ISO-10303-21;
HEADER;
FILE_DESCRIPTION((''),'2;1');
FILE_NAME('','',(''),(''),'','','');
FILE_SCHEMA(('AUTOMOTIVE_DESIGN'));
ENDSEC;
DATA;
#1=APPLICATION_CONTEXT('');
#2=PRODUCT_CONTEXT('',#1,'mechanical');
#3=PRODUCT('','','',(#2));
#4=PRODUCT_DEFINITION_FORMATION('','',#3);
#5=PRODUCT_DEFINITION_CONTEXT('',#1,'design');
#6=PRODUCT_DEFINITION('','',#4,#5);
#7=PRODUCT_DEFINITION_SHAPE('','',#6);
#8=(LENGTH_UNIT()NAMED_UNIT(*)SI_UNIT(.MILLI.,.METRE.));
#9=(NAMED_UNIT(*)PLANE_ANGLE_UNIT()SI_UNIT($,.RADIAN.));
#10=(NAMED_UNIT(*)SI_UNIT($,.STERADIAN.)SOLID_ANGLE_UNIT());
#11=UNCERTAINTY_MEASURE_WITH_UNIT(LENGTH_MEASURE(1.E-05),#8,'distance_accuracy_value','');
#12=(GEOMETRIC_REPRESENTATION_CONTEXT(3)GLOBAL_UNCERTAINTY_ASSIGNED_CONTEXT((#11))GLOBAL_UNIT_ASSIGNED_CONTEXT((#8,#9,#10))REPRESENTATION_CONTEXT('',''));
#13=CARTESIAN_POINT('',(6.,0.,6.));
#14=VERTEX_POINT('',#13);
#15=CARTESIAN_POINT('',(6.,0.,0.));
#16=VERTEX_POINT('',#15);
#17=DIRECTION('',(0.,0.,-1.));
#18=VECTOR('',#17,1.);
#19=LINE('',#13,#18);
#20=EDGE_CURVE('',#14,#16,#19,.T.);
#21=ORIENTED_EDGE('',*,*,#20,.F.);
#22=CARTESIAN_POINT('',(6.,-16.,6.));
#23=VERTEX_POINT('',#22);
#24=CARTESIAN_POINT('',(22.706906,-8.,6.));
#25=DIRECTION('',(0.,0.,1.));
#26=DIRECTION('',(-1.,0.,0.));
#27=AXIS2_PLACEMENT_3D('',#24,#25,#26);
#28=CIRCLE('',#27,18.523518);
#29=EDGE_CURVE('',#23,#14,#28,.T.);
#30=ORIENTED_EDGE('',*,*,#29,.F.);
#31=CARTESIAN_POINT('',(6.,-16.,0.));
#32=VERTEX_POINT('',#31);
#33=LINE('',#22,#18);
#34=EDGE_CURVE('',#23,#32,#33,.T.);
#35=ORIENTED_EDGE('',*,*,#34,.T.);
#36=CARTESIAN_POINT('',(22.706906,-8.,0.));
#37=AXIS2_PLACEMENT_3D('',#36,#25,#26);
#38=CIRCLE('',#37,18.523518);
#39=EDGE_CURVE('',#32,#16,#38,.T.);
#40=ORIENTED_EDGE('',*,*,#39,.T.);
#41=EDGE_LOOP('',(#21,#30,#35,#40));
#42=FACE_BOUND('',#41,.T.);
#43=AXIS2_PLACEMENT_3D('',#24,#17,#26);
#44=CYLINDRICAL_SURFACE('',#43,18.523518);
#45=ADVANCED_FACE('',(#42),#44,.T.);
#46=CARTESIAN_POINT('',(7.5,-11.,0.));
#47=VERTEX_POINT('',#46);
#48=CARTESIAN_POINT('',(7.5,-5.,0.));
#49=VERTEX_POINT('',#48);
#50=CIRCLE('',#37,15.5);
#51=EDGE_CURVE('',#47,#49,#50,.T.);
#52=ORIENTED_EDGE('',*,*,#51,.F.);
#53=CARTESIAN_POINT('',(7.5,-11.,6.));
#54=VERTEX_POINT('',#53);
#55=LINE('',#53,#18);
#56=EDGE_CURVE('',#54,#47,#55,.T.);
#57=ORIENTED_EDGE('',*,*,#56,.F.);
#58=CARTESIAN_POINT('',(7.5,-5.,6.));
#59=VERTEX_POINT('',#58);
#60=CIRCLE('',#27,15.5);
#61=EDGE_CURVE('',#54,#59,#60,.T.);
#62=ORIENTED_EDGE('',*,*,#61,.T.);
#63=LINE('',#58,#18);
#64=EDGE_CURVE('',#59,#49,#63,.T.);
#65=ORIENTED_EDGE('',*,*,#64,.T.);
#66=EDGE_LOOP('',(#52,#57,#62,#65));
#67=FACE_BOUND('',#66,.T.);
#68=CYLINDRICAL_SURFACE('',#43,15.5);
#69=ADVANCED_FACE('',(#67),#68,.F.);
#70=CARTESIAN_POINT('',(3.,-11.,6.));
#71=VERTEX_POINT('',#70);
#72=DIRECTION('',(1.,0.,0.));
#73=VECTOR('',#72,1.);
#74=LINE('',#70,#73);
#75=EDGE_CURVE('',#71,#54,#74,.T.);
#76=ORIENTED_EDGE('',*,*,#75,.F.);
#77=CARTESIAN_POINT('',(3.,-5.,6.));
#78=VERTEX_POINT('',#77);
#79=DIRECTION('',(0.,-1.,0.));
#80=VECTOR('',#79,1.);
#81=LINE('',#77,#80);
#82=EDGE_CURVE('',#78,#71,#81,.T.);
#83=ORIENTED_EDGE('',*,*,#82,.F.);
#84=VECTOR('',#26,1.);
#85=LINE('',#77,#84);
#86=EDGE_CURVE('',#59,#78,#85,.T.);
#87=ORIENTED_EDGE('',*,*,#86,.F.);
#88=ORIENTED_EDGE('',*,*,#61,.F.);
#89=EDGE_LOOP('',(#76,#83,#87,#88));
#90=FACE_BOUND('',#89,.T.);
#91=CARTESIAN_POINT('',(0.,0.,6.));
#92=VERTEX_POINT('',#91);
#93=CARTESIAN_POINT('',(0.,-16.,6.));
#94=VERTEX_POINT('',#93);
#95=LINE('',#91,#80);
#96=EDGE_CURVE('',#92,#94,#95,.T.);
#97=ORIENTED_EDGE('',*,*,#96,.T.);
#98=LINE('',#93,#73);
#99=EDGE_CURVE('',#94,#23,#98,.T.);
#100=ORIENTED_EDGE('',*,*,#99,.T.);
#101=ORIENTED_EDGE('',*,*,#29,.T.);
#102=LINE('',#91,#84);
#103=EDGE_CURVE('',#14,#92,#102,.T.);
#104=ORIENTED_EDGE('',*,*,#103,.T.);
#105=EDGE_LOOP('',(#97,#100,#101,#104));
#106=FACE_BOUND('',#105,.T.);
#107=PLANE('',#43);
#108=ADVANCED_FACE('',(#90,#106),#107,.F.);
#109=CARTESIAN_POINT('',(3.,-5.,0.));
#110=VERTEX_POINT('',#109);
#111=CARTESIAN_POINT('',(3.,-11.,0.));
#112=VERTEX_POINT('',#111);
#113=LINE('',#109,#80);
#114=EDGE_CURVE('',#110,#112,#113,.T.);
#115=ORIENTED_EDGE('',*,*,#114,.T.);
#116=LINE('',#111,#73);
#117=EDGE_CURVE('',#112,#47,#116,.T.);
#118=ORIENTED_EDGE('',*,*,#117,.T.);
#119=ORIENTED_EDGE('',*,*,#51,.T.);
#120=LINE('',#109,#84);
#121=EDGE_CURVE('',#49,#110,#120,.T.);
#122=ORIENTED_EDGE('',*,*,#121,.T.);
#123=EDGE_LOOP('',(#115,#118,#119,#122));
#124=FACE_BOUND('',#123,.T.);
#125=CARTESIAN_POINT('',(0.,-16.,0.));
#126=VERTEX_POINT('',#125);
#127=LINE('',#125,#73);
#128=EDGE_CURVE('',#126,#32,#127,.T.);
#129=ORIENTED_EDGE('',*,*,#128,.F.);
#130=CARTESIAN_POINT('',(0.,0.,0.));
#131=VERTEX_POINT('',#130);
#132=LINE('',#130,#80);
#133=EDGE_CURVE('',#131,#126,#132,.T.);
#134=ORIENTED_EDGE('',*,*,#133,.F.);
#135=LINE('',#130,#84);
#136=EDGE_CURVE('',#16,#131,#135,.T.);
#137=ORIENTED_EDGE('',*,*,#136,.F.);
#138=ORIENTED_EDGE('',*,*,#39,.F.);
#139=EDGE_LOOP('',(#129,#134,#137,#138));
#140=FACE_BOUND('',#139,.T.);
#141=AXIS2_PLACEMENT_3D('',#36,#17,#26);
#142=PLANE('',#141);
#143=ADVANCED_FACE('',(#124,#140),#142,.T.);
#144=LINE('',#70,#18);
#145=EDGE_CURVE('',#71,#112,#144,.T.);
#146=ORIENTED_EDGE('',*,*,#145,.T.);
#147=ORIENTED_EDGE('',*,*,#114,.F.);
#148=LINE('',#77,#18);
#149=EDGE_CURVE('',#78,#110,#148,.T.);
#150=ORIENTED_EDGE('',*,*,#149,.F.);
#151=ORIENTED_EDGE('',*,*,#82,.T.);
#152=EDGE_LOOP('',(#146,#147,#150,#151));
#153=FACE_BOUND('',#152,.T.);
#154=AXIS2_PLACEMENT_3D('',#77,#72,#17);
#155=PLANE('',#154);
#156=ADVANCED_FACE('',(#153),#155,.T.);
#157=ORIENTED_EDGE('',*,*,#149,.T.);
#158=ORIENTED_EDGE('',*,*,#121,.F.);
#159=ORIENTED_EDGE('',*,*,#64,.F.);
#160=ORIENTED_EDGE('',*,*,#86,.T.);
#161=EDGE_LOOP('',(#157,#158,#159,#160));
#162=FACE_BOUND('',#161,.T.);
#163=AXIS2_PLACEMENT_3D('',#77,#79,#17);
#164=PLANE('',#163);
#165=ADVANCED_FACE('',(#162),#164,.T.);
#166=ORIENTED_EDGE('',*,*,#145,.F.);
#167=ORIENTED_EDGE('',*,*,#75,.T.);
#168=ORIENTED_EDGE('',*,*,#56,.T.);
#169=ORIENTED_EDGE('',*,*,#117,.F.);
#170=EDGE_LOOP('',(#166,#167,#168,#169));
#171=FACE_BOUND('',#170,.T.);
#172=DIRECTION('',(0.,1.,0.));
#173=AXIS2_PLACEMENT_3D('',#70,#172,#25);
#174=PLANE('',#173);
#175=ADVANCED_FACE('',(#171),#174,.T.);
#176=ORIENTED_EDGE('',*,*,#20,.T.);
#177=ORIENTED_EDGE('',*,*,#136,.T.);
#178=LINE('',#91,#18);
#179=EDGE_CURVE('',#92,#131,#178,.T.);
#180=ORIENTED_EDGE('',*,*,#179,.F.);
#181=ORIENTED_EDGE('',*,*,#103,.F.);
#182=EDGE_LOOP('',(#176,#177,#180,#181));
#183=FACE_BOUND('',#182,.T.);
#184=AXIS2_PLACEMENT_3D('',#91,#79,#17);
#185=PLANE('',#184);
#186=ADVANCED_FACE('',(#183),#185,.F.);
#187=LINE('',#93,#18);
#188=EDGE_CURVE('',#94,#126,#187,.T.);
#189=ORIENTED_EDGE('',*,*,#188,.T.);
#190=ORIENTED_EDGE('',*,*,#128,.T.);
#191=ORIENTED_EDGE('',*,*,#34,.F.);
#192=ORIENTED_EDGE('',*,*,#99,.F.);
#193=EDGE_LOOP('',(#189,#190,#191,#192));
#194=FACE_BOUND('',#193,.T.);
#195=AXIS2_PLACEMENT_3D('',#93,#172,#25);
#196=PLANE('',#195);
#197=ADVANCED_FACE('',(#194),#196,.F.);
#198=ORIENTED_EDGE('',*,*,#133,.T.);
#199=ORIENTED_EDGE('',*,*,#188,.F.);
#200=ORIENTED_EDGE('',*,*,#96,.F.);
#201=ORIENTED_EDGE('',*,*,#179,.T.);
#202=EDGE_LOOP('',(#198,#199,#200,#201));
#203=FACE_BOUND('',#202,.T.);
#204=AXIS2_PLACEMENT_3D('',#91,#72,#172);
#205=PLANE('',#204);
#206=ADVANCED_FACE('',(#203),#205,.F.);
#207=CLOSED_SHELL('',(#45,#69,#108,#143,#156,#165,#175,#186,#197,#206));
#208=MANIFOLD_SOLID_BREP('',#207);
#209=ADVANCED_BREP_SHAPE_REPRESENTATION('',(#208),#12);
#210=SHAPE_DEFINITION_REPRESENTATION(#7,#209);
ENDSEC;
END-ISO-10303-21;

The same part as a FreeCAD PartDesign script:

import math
import FreeCAD as App
import Part
import Sketcher
from FreeCAD import Vector

doc = App.newDocument("Part")
params = doc.addObject("Spreadsheet::Sheet", "Params")
for row, (alias, value) in enumerate([
    ("sketch1_radius", "15.5 mm"),
    ("sketch1_width", "6 mm"),
    ("sketch1_height", "16 mm"),
    ("sketch1_width2", "4.5 mm"),
    ("pad1_length", "6 mm"),
], start=1):
    params.set(f"A{row}", alias)
    params.set(f"B{row}", "=" + value)
    params.setAlias(f"B{row}", alias)

body = doc.addObject("PartDesign::Body", "Body")

# Sketch on XY plane
sketch1 = body.newObject("Sketcher::SketchObject", "Sketch")
sketch1.AttachmentSupport = (doc.getObject("XY_Plane"), [""])
sketch1.MapMode = "FlatFace"
sketch1.addGeometry(Part.LineSegment(Vector(6, 0, 0), Vector(0, 0, 0)), False)
sketch1.addGeometry(Part.LineSegment(Vector(0, 0, 0), Vector(0, -16, 0)), False)
sketch1.addGeometry(Part.LineSegment(Vector(0, -16, 0), Vector(6, -16, 0)), False)
sketch1.addGeometry(Part.ArcOfCircle(Part.Circle(Vector(22.7, -8, 0), Vector(0, 0, 1), 18.5), math.radians(-154), math.radians(154)), False)
sketch1.addGeometry(Part.LineSegment(Vector(3, -5, 0), Vector(7.5, -5, 0)), False)
sketch1.addGeometry(Part.ArcOfCircle(Part.Circle(Vector(22.7, -8, 0), Vector(0, 0, 1), 15.5), math.radians(-169), math.radians(169)), False)
sketch1.addGeometry(Part.LineSegment(Vector(7.5, -11, 0), Vector(3, -11, 0)), False)
sketch1.addGeometry(Part.LineSegment(Vector(3, -11, 0), Vector(3, -5, 0)), False)
sketch1.addConstraint(Sketcher.Constraint("Coincident", 0, 2, 1, 1))
sketch1.addConstraint(Sketcher.Constraint("Coincident", 1, 2, 2, 1))
sketch1.addConstraint(Sketcher.Constraint("Coincident", 2, 2, 3, 1))
sketch1.addConstraint(Sketcher.Constraint("Coincident", 3, 2, 0, 1))
sketch1.addConstraint(Sketcher.Constraint("Coincident", 4, 2, 5, 2))
sketch1.addConstraint(Sketcher.Constraint("Coincident", 5, 1, 6, 1))
sketch1.addConstraint(Sketcher.Constraint("Coincident", 6, 2, 7, 1))
sketch1.addConstraint(Sketcher.Constraint("Coincident", 7, 2, 4, 1))
sketch1.addConstraint(Sketcher.Constraint("Horizontal", 0))
sketch1.addConstraint(Sketcher.Constraint("Vertical", 1))
sketch1.addConstraint(Sketcher.Constraint("Horizontal", 2))
sketch1.addConstraint(Sketcher.Constraint("Horizontal", 4))
sketch1.addConstraint(Sketcher.Constraint("Horizontal", 6))
sketch1.addConstraint(Sketcher.Constraint("Vertical", 7))
sketch1.addConstraint(Sketcher.Constraint("Coincident", 0, 2, -1, 1))
sketch1.addConstraint(Sketcher.Constraint("Coincident", 5, 3, 3, 3))
sketch1.addConstraint(Sketcher.Constraint("Vertical", 2, 2, 3, 2))
sketch1.addConstraint(Sketcher.Constraint("Vertical", 4, 2, 5, 1))
sketch1.addConstraint(Sketcher.Constraint("Equal", 2, 7))
sketch1.addConstraint(Sketcher.Constraint("Radius", 5, 15.5))
sketch1.addConstraint(Sketcher.Constraint("DistanceX", 0, 2, 0, 1, 6.0))
sketch1.addConstraint(Sketcher.Constraint("DistanceY", 1, 2, 1, 1, 16.0))
sketch1.addConstraint(Sketcher.Constraint("DistanceX", 4, 1, 4, 2, 4.5))
sketch1.addConstraint(Sketcher.Constraint("DistanceX", -1, 1, 6, 2, 3.0))
sketch1.setExpression("Constraints[19]", "Params.sketch1_radius")
sketch1.setExpression("Constraints[20]", "Params.sketch1_width")
sketch1.setExpression("Constraints[21]", "Params.sketch1_height")
sketch1.setExpression("Constraints[22]", "Params.sketch1_width2")
pad1 = body.newObject("PartDesign::Pad", "Pad")
pad1.Profile = sketch1
pad1.setExpression("Length", "Params.pad1_length")

doc.recompute()
